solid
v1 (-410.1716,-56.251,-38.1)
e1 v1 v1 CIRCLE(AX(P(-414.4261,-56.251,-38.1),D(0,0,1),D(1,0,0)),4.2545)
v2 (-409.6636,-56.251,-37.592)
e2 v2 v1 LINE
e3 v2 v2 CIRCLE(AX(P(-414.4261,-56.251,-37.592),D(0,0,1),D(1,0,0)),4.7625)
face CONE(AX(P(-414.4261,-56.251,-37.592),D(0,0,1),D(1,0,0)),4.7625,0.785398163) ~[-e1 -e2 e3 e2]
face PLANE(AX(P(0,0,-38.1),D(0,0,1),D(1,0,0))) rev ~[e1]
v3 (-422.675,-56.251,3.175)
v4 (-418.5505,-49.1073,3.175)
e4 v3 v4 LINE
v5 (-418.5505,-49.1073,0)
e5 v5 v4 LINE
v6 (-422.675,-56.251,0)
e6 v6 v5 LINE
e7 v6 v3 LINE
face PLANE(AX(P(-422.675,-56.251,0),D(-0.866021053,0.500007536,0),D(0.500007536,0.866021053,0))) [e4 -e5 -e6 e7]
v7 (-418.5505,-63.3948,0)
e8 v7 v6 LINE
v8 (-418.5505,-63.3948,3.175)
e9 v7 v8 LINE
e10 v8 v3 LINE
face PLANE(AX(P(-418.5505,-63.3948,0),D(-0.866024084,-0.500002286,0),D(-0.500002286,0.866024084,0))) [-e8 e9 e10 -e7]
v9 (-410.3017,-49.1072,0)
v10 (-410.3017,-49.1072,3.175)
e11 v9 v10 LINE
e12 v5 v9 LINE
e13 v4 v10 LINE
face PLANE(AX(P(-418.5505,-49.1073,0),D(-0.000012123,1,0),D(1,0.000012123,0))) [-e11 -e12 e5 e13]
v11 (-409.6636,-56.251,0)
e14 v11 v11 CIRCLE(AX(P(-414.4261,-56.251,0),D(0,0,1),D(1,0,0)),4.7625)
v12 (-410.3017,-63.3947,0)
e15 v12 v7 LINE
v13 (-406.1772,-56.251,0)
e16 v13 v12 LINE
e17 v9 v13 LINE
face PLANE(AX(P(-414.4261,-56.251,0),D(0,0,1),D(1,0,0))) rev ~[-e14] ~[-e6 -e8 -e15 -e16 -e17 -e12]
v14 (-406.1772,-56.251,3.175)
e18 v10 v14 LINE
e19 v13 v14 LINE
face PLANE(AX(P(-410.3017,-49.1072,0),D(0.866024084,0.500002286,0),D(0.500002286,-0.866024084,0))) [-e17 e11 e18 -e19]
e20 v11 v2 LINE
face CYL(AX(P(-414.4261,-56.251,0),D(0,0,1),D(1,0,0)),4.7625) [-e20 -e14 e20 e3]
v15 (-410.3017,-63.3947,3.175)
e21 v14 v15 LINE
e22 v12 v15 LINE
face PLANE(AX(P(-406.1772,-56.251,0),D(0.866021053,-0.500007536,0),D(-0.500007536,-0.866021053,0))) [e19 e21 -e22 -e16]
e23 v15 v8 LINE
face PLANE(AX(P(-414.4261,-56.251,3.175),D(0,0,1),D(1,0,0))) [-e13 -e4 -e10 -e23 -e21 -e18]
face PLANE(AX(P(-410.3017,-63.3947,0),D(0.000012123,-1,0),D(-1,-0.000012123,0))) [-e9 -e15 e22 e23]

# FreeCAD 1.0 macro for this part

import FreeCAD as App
import Part
import Sketcher
Q = App.Units.Quantity


def edges_at(feature, points):
    """Names of the edges that pass closest to the given points."""
    edges = feature.Shape.Edges
    near = lambda p: min(range(len(edges)), key=lambda i: edges[i].distToShape(Part.Vertex(*p))[0])
    return sorted({f"Edge{near(p) + 1}" for p in points})


def add_polygon(sketch, points):
    """Adds a closed chain of lines whose ends are joined by coincident constraints."""
    first, n = sketch.GeometryCount, len(points)
    for a, b in zip(points, points[1:] + points[:1]):
        sketch.addGeometry(Part.LineSegment(App.Vector(*a, 0), App.Vector(*b, 0)), False)
    for i in range(n):
        sketch.addConstraint(Sketcher.Constraint("Coincident", first + i, 2, first + (i + 1) % n, 1))

doc = App.newDocument("Part")
params = doc.addObject("Spreadsheet::Sheet", "Params")
for row, (alias, value) in enumerate([
    ("sketch1_diameter", "0.375 in"),
    ("pad1_length", "1.5 in"),
    ("pad2_length", "0.125 in"),
    ("chamfer_size", "0.02 in"),
], start=1):
    params.set(f"A{row}", alias)
    params.set(f"B{row}", "=" + value)
    params.setAlias(f"B{row}", alias)

body = doc.addObject("PartDesign::Body", "Body")

# Sketch on XY plane
sketch1 = body.newObject("Sketcher::SketchObject", "Sketch")
sketch1.AttachmentSupport = (doc.getObject("XY_Plane"), [""])
sketch1.MapMode = "FlatFace"
sketch1.addGeometry(Part.Circle(App.Vector(-414.4, -56.3, 0), App.Vector(0, 0, 1), 4.8), False)
sketch1.addConstraint(Sketcher.Constraint("Diameter", 0, Q("0.375 in")))
sketch1.addConstraint(Sketcher.Constraint("DistanceX", 0, 3, -1, 1, Q("16.316 in")))
sketch1.addConstraint(Sketcher.Constraint("DistanceY", 0, 3, -1, 1, Q("2.2146 in")))
sketch1.setExpression("Constraints[0]", "Params.sketch1_diameter")
pad1 = body.newObject("PartDesign::Pad", "Pad")
pad1.Profile = sketch1
pad1.setExpression("Length", "Params.pad1_length")
pad1.Reversed = True

# Sketch on XY plane
sketch2 = body.newObject("Sketcher::SketchObject", "Sketch001")
sketch2.AttachmentSupport = (doc.getObject("XY_Plane"), [""])
sketch2.MapMode = "FlatFace"
add_polygon(sketch2, [(-419, -49), (-423, -56), (-419, -63), (-410, -63), (-406, -56), (-410, -49)])  # lines 0-5
sketch2.addConstraint(Sketcher.Constraint("Horizontal", 2))
sketch2.addConstraint(Sketcher.Constraint("Horizontal", 5))
sketch2.addConstraint(Sketcher.Constraint("Parallel", 0, 3))
sketch2.addConstraint(Sketcher.Constraint("Parallel", 1, 4))
sketch2.addConstraint(Sketcher.Constraint("Horizontal", 0, 2, 3, 2))
sketch2.addConstraint(Sketcher.Constraint("Vertical", 2, 2, 4, 2))
sketch2.addConstraint(Sketcher.Constraint("Vertical", 1, 2, 5, 2))
sketch2.addConstraint(Sketcher.Constraint("Angle", 0, Q("-120.0005 deg")))
sketch2.addConstraint(Sketcher.Constraint("DistanceY", 2, 2, 4, 2, Q("0.5625 in")))
sketch2.addConstraint(Sketcher.Constraint("DistanceX", 2, 1, 2, 2, 8.2488))
sketch2.addConstraint(Sketcher.Constraint("DistanceY", 0, 2, -1, 1, Q("2.2146 in")))
sketch2.addConstraint(Sketcher.Constraint("DistanceX", 2, 2, -1, 1, Q("16.1536 in")))
pad2 = body.newObject("PartDesign::Pad", "Pad001")
pad2.Profile = sketch2
pad2.setExpression("Length", "Params.pad2_length")
doc.recompute()

chamfer = body.newObject("PartDesign::Chamfer", "Chamfer")
chamfer.Base = (pad2, edges_at(pad2, [(-419.189, -56.251, -38.1)]))
chamfer.setExpression("Size", "Params.chamfer_size")

doc.recompute()
